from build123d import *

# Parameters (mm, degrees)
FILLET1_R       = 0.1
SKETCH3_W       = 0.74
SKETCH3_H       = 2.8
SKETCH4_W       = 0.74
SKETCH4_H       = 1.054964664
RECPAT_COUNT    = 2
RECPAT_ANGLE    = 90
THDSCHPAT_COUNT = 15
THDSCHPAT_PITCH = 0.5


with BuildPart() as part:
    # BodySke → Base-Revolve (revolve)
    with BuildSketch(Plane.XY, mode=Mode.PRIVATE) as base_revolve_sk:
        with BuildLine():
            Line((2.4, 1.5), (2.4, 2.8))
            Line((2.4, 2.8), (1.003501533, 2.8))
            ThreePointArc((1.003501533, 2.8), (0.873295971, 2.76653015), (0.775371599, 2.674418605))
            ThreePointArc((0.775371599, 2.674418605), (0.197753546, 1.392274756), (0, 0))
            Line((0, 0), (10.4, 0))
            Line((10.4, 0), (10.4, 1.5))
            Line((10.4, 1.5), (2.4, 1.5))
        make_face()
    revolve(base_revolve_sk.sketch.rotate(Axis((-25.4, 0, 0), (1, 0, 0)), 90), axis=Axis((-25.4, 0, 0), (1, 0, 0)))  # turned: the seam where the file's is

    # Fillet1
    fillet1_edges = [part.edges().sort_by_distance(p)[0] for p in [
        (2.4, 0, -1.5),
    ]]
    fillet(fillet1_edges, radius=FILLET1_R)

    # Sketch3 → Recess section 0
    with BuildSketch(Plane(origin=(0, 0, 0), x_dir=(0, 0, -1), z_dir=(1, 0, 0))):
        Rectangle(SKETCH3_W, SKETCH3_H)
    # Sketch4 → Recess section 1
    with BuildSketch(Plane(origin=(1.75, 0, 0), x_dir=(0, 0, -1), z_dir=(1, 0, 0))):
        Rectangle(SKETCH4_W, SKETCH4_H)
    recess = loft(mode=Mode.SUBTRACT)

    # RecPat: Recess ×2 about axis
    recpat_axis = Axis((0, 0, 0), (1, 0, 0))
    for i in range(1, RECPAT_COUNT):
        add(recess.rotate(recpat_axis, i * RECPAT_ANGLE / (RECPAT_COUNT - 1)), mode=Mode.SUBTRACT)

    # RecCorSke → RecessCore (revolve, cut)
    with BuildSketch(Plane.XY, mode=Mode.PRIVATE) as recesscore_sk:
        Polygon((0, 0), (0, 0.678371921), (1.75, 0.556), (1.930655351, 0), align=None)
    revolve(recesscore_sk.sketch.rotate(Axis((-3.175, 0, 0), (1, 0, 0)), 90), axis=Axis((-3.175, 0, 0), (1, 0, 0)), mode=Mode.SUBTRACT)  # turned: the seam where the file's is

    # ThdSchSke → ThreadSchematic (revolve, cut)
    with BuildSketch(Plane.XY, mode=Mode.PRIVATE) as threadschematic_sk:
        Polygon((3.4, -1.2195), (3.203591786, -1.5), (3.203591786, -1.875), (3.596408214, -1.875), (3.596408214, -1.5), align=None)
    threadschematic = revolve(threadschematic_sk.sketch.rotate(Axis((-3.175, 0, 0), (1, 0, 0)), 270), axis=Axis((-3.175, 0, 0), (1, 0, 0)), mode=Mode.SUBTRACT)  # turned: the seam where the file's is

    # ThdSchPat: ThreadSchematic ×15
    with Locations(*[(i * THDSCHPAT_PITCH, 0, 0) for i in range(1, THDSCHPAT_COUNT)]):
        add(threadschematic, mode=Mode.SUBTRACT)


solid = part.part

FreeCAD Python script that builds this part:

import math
import FreeCAD as App
import Part
import Sketcher
from FreeCAD import Vector
Q = App.Units.Quantity


def edges_at(feature, points):
    """Names of the edges that pass closest to the given points."""
    edges = feature.Shape.Edges
    near = lambda p: min(range(len(edges)), key=lambda i: edges[i].distToShape(Part.Vertex(*p))[0])
    return sorted({f"Edge{near(p) + 1}" for p in points})


def add_polygon(sketch, points):
    """Adds a closed chain of lines whose ends are joined by coincident constraints."""
    first, n = sketch.GeometryCount, len(points)
    for a, b in zip(points, points[1:] + points[:1]):
        sketch.addGeometry(Part.LineSegment(App.Vector(*a, 0), App.Vector(*b, 0)), False)
    for i in range(n):
        sketch.addConstraint(Sketcher.Constraint("Coincident", first + i, 2, first + (i + 1) % n, 1))

doc = App.newDocument("Part")
params = doc.addObject("Spreadsheet::Sheet", "Params")
for row, (alias, value) in enumerate([
    ("sketch1_radius", "5 mm"),
    ("sketch1_width", "8 mm"),
    ("sketch1_radius2", "0.27 mm"),
    ("sketch1_width2", "10.4 mm"),
    ("sketch1_height", "1.3 mm"),
    ("revolution_angle", "360 deg"),
    ("fillet_radius", "0.1 mm"),
    ("sketch2_width", "2.8 mm"),
    ("sketch2_height", "0.74 mm"),
    ("sketch3_height", "0.74 mm"),
    ("groove_angle", "360 deg"),
    ("groove2_angle", "360 deg"),
    ("linearpattern_pitch", "0.5 mm"),
], start=1):
    params.set(f"A{row}", alias)
    params.set(f"B{row}", "=" + value)
    params.setAlias(f"B{row}", alias)

body = doc.addObject("PartDesign::Body", "Body")

sketch1 = body.newObject("Sketcher::SketchObject", "Sketch")
sketch1.AttachmentSupport = (doc.getObject("XY_Plane"), [""])
sketch1.MapMode = "FlatFace"
sketch1.addGeometry([
    Part.LineSegment(Vector(2.4, 1.5, 0), Vector(2.4, 2.8, 0)),
    Part.LineSegment(Vector(2.4, 2.8, 0), Vector(1, 2.8, 0)),
    Part.ArcOfCircle(Part.Circle(Vector(1, 2.53, 0), Vector(0, 0, 1), 0.27), math.radians(90), math.radians(148)),
    Part.ArcOfCircle(Part.Circle(Vector(5, 0, 0), Vector(0, 0, 1), 5), math.radians(148), math.radians(180)),
    Part.LineSegment(Vector(0, 0, 0), Vector(10.4, 0, 0)),
    Part.LineSegment(Vector(10.4, 0, 0), Vector(10.4, 1.5, 0)),
    Part.LineSegment(Vector(10.4, 1.5, 0), Vector(2.4, 1.5, 0)),
], False)
sketch1.addConstraint([
    Sketcher.Constraint("Coincident", 0, 2, 1, 1),
    Sketcher.Constraint("Tangent", 1, 2, 2, 1),
    Sketcher.Constraint("Tangent", 2, 2, 3, 1),
    Sketcher.Constraint("Coincident", 3, 2, 4, 1),
    Sketcher.Constraint("Coincident", 4, 2, 5, 1),
    Sketcher.Constraint("Coincident", 5, 2, 6, 1),
    Sketcher.Constraint("Coincident", 6, 2, 0, 1),
    Sketcher.Constraint("Vertical", 0),
    Sketcher.Constraint("Horizontal", 1),
    Sketcher.Constraint("Horizontal", 4),
    Sketcher.Constraint("Vertical", 5),
    Sketcher.Constraint("Horizontal", 6),
    Sketcher.Constraint("Coincident", 3, 2, -1, 1),
    Sketcher.Constraint("PointOnObject", 3, 3, -1),
    Sketcher.Constraint("Radius", 3, Q("5 mm")),
    Sketcher.Constraint("DistanceX", 6, 2, 6, 1, Q("8 mm")),
    Sketcher.Constraint("Radius", 2, Q("0.27 mm")),
    Sketcher.Constraint("DistanceX", 4, 1, 4, 2, Q("10.4 mm")),
    Sketcher.Constraint("DistanceY", 0, 1, 0, 2, Q("1.3 mm")),
    Sketcher.Constraint("DistanceY", 5, 1, 5, 2, Q("1.5 mm")),
])
sketch1.setExpression("Constraints[14]", "Params.sketch1_radius")
sketch1.setExpression("Constraints[15]", "Params.sketch1_width")
sketch1.setExpression("Constraints[16]", "Params.sketch1_radius2")
sketch1.setExpression("Constraints[17]", "Params.sketch1_width2")
sketch1.setExpression("Constraints[18]", "Params.sketch1_height")
revolution = body.newObject("PartDesign::Revolution", "Revolution")
revolution.Profile = sketch1
revolution.ReferenceAxis = (sketch1, ["H_Axis"])
revolution.setExpression("Angle", "Params.revolution_angle")
doc.recompute()

fillet = body.newObject("PartDesign::Fillet", "Fillet")
fillet.Base = (revolution, edges_at(revolution, [(2.4, 0, -1.5)]))
fillet.setExpression("Radius", "Params.fillet_radius")

sketch2 = body.newObject("Sketcher::SketchObject", "Sketch001")
sketch2.AttachmentSupport = (doc.getObject("YZ_Plane"), [""])
sketch2.MapMode = "FlatFace"
add_polygon(sketch2, [(1.4, 0.4), (-1.4, 0.4), (-1.4, -0.4), (1.4, -0.4)])
sketch2.addConstraint([
    Sketcher.Constraint("Horizontal", 0),
    Sketcher.Constraint("Vertical", 1),
    Sketcher.Constraint("Horizontal", 2),
    Sketcher.Constraint("Vertical", 3),
    Sketcher.Constraint("Symmetric", 0, 2, 2, 2, -1, 1),
    Sketcher.Constraint("DistanceX", 0, 2, 0, 1, Q("2.8 mm")),
    Sketcher.Constraint("DistanceY", 1, 2, 1, 1, Q("0.74 mm")),
])
sketch2.setExpression("Constraints[9]", "Params.sketch2_width")
sketch2.setExpression("Constraints[10]", "Params.sketch2_height")

sketch3 = body.newObject("Sketcher::SketchObject", "Sketch002")
sketch3.AttachmentSupport = (doc.getObject("YZ_Plane"), [""])
sketch3.MapMode = "FlatFace"
sketch3.AttachmentOffset = App.Placement(Vector(0, 0, 1.75), App.Rotation())
add_polygon(sketch3, [(0.5, 0.4), (-0.5, 0.4), (-0.5, -0.4), (0.5, -0.4)])
sketch3.addConstraint([
    Sketcher.Constraint("Horizontal", 0),
    Sketcher.Constraint("Vertical", 1),
    Sketcher.Constraint("Horizontal", 2),
    Sketcher.Constraint("Vertical", 3),
    Sketcher.Constraint("Symmetric", 0, 2, 2, 2, -1, 1),
    Sketcher.Constraint("DistanceY", 1, 2, 1, 1, Q("0.74 mm")),
    Sketcher.Constraint("DistanceX", 0, 2, 0, 1, Q("1.054965 mm")),
])
sketch3.setExpression("Constraints[9]", "Params.sketch3_height")

subtractiveloft = body.newObject("PartDesign::SubtractiveLoft", "SubtractiveLoft")
subtractiveloft.Profile = sketch2
subtractiveloft.Sections = [sketch3]
doc.recompute()

polarpattern = body.newObject("PartDesign::PolarPattern", "PolarPattern")
polarpattern.Originals = [subtractiveloft]
polarpattern.Axis = (doc.getObject("X_Axis"), [""])
polarpattern.Angle = 90
polarpattern.Occurrences = 2
body.Tip = polarpattern

sketch4 = body.newObject("Sketcher::SketchObject", "Sketch003")
sketch4.AttachmentSupport = (doc.getObject("XY_Plane"), [""])
sketch4.MapMode = "FlatFace"
add_polygon(sketch4, [(0, 0.7), (0, 0), (1.9, 0), (1.8, 0.6)])
sketch4.addConstraint([
    Sketcher.Constraint("Vertical", 0),
    Sketcher.Constraint("Horizontal", 1),
    Sketcher.Constraint("Coincident", 0, 2, -1, 1),
    Sketcher.Constraint("Angle", 2, Q("108 deg")),
    Sketcher.Constraint("Angle", 3, Q("176 deg")),
    Sketcher.Constraint("DistanceX", -1, 1, 2, 2, Q("1.75 mm")),
    Sketcher.Constraint("DistanceY", -1, 1, 2, 2, Q("0.556 mm")),
])
groove = body.newObject("PartDesign::Groove", "Groove")
groove.Profile = sketch4
groove.ReferenceAxis = (sketch4, ["H_Axis"])
groove.setExpression("Angle", "Params.groove_angle")

sketch5 = body.newObject("Sketcher::SketchObject", "Sketch004")
sketch5.AttachmentSupport = (doc.getObject("XY_Plane"), [""])
sketch5.MapMode = "FlatFace"
add_polygon(sketch5, [(3.4, -1.22), (3.2, -1.5), (3.2, -1.88), (3.6, -1.88), (3.6, -1.5)])
sketch5.addConstraint([
    Sketcher.Constraint("Vertical", 1),
    Sketcher.Constraint("Horizontal", 2),
    Sketcher.Constraint("Vertical", 3),
    Sketcher.Constraint("Horizontal", 0, 2, 3, 2),
    Sketcher.Constraint("Equal", 0, 4),
    Sketcher.Constraint("Angle", 0, Q("-125 deg")),
    Sketcher.Constraint("DistanceY", 0, 2, -1, 1, Q("1.5 mm")),
    Sketcher.Constraint("DistanceX", -1, 1, 4, 2, Q("3.4 mm")),
    Sketcher.Constraint("DistanceY", 1, 2, 1, 1, Q("0.375 mm")),
    Sketcher.Constraint("DistanceY", 4, 2, -1, 1, Q("1.2195 mm")),
])
groove2 = body.newObject("PartDesign::Groove", "Groove001")
groove2.Profile = sketch5
groove2.ReferenceAxis = (sketch5, ["H_Axis"])
groove2.setExpression("Angle", "Params.groove2_angle")
doc.recompute()

linearpattern = body.newObject("PartDesign::LinearPattern", "LinearPattern")
linearpattern.Originals = [groove2]
linearpattern.Direction = (doc.getObject("X_Axis"), [""])
linearpattern.Mode = "offset"
linearpattern.setExpression("Offset", "Params.linearpattern_pitch")
linearpattern.Occurrences = 15
body.Tip = linearpattern

doc.recompute()
